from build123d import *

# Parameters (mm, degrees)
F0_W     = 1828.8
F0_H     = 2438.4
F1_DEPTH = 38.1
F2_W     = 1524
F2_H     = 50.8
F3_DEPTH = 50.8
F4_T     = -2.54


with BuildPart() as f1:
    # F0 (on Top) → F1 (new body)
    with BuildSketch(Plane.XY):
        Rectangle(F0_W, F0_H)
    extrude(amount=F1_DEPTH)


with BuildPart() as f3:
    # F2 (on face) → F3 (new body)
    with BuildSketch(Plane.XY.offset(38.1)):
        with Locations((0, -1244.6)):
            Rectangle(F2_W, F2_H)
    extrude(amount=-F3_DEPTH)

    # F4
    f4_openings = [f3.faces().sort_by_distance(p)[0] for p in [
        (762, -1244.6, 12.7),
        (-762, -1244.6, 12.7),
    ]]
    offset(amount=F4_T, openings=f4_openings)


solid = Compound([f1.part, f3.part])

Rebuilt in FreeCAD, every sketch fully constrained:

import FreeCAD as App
import Part
import Sketcher

V = App.Vector
Q = App.Units.Quantity


def faces_at(feature, points):
    """Names of the faces that lie closest to the given points."""
    faces = feature.Shape.Faces
    near = lambda p: min(range(len(faces)), key=lambda i: faces[i].distToShape(Part.Vertex(*p))[0])
    return sorted({f"Face{near(p) + 1}" for p in points})


def add_polygon(sketch, points):
    """Adds a closed chain of lines whose ends are joined by coincident constraints."""
    first, n = sketch.GeometryCount, len(points)
    for a, b in zip(points, points[1:] + points[:1]):
        sketch.addGeometry(Part.LineSegment(App.Vector(*a, 0), App.Vector(*b, 0)), False)
    for i in range(n):
        sketch.addConstraint(Sketcher.Constraint("Coincident", first + i, 2, first + (i + 1) % n, 1))

doc = App.newDocument("Part")
body = doc.addObject("PartDesign::Body", "Body")

sketch1 = body.newObject("Sketcher::SketchObject", "Sketch")
sketch1.AttachmentSupport = (doc.getObject("XY_Plane"), [""])
sketch1.MapMode = "FlatFace"
add_polygon(sketch1, [(-914.4, 1219.2), (-914.4, -1219.2), (914.4, -1219.2), (914.4, 1219.2)])
sketch1.addConstraint([
    Sketcher.Constraint("Vertical", 0),
    Sketcher.Constraint("Horizontal", 1),
    Sketcher.Constraint("Vertical", 2),
    Sketcher.Constraint("Horizontal", 3),
    Sketcher.Constraint("Symmetric", 0, 2, 2, 2, -1, 1),
    Sketcher.Constraint("DistanceX", 1, 1, 1, 2, Q("72 in")),
    Sketcher.Constraint("DistanceY", 0, 2, 0, 1, Q("96 in")),
])
pad1 = body.newObject("PartDesign::Pad", "Pad")
pad1.Profile = sketch1
pad1.Length = Q("1.5 in")
body2 = doc.addObject("PartDesign::Body", "Body001")

sketch2 = body2.newObject("Sketcher::SketchObject", "Sketch001")
sketch2.AttachmentSupport = (doc.getObject("XY_Plane001"), [""])
sketch2.MapMode = "FlatFace"
sketch2.AttachmentOffset = App.Placement(V(0, 0, 1.5 * 25.4), App.Rotation())
add_polygon(sketch2, [(-762, -1219.2), (-762, -1270), (762, -1270), (762, -1219.2)])
sketch2.addConstraint([
    Sketcher.Constraint("Vertical", 0),
    Sketcher.Constraint("Horizontal", 1),
    Sketcher.Constraint("Vertical", 2),
    Sketcher.Constraint("Horizontal", 3),
    Sketcher.Constraint("DistanceX", 1, 1, 1, 2, Q("60 in")),
    Sketcher.Constraint("DistanceY", 0, 2, 0, 1, Q("2 in")),
    Sketcher.Constraint("DistanceX", 0, 2, -1, 1, Q("30 in")),
    Sketcher.Constraint("DistanceY", 0, 2, -1, 1, Q("50 in")),
])
pad2 = body2.newObject("PartDesign::Pad", "Pad001")
pad2.Profile = sketch2
pad2.Length = Q("2 in")
pad2.Reversed = True
doc.recompute()

thickness = body2.newObject("PartDesign::Thickness", "Thickness")
thickness.Base = (pad2, faces_at(pad2, [(762, -1244.6, 12.7), (-762, -1244.6, 12.7)]))
thickness.Value = Q("0.1 in")
thickness.Reversed = True
thickness.Join = "Arc"

doc.recompute()
